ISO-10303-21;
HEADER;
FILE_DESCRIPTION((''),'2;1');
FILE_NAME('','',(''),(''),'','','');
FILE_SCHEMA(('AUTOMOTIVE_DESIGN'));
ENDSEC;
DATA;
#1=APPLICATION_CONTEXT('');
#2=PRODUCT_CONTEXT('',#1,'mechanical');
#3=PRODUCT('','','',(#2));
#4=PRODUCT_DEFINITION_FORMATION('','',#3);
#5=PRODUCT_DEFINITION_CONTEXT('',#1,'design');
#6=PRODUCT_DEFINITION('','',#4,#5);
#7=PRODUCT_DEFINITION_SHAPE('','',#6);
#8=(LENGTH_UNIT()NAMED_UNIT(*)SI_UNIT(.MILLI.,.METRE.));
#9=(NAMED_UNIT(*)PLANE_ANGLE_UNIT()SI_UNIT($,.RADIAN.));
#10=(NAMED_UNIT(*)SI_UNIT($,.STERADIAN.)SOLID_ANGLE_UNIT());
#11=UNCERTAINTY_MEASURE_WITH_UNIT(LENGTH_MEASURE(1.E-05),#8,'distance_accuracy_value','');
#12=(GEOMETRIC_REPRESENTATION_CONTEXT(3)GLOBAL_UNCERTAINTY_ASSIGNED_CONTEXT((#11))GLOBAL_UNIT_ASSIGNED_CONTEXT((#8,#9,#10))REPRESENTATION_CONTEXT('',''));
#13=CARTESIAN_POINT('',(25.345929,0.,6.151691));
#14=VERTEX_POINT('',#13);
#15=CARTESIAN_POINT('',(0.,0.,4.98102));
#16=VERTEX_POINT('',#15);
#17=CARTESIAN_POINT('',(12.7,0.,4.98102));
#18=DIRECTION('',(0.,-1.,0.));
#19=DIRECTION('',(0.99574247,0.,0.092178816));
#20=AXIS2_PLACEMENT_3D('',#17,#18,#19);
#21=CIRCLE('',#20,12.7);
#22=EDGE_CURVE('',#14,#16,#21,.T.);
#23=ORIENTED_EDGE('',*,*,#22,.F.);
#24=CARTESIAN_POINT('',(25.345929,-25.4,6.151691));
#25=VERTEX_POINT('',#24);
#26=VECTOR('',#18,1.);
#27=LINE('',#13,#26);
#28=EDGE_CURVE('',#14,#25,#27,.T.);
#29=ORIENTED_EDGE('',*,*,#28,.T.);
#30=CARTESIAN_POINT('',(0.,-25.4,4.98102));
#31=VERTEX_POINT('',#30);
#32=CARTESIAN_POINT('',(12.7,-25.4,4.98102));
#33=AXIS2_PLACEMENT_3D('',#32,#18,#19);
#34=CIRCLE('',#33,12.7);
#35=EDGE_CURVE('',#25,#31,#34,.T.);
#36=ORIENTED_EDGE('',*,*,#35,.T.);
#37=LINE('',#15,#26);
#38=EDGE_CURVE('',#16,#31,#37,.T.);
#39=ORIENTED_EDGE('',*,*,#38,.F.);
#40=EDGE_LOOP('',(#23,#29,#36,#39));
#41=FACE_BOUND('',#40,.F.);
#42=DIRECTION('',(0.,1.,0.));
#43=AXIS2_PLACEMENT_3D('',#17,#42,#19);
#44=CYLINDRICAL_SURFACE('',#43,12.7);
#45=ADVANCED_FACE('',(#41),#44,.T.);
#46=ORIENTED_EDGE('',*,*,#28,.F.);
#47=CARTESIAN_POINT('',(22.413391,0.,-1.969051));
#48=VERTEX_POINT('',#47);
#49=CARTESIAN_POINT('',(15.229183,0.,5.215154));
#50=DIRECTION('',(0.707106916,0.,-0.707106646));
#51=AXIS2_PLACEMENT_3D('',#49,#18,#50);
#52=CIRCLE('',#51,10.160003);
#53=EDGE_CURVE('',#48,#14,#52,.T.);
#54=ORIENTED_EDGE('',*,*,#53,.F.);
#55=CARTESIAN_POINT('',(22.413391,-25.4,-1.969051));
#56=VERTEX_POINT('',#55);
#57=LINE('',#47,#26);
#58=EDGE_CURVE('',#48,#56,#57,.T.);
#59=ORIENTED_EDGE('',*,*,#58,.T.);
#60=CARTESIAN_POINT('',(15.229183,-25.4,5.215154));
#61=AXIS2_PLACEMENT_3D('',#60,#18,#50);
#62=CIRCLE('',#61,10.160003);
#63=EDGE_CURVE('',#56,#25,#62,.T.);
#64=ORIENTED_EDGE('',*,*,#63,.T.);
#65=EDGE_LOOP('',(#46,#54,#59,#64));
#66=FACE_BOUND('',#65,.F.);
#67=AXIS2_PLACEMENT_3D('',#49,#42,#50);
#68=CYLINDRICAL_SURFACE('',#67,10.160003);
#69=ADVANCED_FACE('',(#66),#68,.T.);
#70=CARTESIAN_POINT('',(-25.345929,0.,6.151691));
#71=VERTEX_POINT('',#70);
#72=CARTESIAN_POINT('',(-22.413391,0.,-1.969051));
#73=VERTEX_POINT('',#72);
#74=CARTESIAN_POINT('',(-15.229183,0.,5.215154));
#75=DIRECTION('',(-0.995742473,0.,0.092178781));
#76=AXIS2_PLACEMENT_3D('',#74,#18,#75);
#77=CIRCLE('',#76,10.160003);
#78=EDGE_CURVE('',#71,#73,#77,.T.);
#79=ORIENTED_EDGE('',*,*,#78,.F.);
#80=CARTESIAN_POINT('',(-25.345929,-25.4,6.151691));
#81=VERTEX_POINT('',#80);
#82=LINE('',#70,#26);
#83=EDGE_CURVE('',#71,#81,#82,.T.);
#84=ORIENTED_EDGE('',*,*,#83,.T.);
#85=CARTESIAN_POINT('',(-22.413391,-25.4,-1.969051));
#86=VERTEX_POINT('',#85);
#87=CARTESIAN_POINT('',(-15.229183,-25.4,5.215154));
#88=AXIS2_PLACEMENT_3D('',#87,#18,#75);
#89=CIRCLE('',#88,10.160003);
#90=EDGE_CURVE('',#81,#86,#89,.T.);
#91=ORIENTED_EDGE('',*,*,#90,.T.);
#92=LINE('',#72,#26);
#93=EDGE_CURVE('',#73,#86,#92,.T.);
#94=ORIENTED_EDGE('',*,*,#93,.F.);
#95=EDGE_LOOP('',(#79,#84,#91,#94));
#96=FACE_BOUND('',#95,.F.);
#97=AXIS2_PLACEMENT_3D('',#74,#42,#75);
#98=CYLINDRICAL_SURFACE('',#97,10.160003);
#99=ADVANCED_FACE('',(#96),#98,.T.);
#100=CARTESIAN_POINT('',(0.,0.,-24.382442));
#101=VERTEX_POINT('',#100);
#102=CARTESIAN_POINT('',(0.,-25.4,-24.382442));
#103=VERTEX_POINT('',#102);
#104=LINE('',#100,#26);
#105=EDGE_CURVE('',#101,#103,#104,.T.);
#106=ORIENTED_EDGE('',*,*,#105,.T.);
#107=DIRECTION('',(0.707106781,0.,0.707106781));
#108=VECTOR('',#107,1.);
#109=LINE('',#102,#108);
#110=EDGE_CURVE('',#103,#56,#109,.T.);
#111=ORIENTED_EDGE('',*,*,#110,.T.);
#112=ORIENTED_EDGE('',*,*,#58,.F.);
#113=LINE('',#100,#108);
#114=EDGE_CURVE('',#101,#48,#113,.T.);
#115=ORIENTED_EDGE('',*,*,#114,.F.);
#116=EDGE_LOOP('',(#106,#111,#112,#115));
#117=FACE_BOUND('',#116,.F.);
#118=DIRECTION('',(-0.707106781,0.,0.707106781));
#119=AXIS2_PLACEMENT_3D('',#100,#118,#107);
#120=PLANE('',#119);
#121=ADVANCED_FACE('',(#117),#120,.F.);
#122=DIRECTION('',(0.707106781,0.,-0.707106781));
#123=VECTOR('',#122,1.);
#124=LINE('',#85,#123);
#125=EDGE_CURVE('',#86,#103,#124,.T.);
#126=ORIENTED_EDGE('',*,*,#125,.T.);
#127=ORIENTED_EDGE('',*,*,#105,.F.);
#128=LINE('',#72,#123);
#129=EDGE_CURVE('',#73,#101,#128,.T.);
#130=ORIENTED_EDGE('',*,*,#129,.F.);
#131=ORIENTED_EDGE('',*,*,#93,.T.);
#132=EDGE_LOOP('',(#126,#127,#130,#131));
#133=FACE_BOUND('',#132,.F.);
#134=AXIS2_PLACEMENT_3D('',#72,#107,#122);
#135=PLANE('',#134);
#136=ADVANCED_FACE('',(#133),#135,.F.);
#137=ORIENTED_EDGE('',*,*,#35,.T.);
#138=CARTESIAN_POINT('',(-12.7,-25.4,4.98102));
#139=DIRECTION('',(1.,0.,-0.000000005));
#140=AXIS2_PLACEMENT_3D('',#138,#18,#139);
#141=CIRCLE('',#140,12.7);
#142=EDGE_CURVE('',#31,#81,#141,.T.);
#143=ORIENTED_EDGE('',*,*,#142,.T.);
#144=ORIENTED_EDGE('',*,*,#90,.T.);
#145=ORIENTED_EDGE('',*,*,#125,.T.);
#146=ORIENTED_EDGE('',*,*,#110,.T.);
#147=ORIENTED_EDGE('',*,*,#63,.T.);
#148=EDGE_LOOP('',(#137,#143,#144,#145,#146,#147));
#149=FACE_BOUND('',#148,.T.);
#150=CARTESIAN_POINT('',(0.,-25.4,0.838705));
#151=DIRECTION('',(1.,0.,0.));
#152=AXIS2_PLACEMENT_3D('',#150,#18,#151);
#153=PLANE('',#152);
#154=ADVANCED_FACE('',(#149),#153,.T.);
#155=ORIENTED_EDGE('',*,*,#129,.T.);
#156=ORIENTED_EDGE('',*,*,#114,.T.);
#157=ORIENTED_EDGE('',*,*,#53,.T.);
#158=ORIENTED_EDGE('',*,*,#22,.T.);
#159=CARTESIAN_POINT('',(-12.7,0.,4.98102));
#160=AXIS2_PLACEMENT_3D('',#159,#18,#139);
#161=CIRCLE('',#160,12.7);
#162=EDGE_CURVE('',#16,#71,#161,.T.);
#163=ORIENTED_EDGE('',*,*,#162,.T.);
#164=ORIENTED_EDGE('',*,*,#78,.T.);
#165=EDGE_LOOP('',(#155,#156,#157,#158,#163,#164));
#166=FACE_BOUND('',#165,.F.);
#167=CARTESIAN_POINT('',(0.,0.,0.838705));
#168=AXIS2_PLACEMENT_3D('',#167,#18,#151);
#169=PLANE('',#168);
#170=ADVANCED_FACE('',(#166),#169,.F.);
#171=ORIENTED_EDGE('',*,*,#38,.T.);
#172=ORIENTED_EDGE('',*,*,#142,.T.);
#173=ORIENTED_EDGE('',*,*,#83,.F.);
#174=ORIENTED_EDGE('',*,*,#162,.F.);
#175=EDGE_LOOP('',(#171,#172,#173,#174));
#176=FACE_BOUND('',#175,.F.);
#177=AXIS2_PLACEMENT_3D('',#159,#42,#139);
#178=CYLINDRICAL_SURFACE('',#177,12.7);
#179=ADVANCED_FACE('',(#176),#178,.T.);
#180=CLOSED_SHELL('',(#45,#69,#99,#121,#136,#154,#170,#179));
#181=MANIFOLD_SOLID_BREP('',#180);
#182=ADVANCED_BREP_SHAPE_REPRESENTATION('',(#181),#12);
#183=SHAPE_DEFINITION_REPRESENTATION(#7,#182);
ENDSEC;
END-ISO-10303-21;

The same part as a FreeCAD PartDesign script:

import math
import FreeCAD as App
import Part
import Sketcher

V = App.Vector
Q = App.Units.Quantity

doc = App.newDocument("Part")
body = doc.addObject("PartDesign::Body", "Body")

# Sketch on XZ plane
sketch1 = body.newObject("Sketcher::SketchObject", "Sketch")
sketch1.AttachmentSupport = (doc.getObject("XZ_Plane"), [""])
sketch1.MapMode = "FlatFace"
sketch1.addGeometry([
    Part.LineSegment(V(-22.413391, -1.969051, 0), V(0, -24.382442, 0)),  # 0
    Part.LineSegment(V(0, -24.382442, 0), V(22.413391, -1.969051, 0)),  # 1
    Part.ArcOfCircle(Part.Circle(V(15.229183, 5.215154, 0), V(0, 0, 1), 10.160003), math.radians(-44.999989), math.radians(5.288963)),  # 2
    Part.ArcOfCircle(Part.Circle(V(12.7, 4.98102, 0), V(0, 0, 1), 12.7), math.radians(5.288965), math.radians(180)),  # 3
    Part.ArcOfCircle(Part.Circle(V(-12.7, 4.98102, 0), V(0, 0, 1), 12.7), math.radians(0), math.radians(174.711035)),  # 4
    Part.ArcOfCircle(Part.Circle(V(-15.229183, 5.215154, 0), V(0, 0, 1), 10.160003), math.radians(174.711037), math.radians(224.999989)),  # 5
], False)
sketch1.addConstraint([
    Sketcher.Constraint("Coincident", 0, 2, 1, 1),
    Sketcher.Constraint("Coincident", 1, 2, 2, 1),
    Sketcher.Constraint("Coincident", 2, 2, 3, 1),
    Sketcher.Constraint("Coincident", 3, 2, 4, 1),
    Sketcher.Constraint("Coincident", 4, 2, 5, 1),
    Sketcher.Constraint("Coincident", 5, 2, 0, 1),
    Sketcher.Constraint("PointOnObject", 0, 2, -2),
    Sketcher.Constraint("PointOnObject", 3, 2, -2),
    Sketcher.Constraint("Radius", 2, Q("0.4000001 in")),
    Sketcher.Constraint("Radius", 3, Q("0.5 in")),
    Sketcher.Constraint("Radius", 4, Q("0.5 in")),
    Sketcher.Constraint("Radius", 5, Q("0.4000001 in")),
    Sketcher.Constraint("Distance", 0, Q("31.697322 mm")),
    Sketcher.Constraint("Distance", 1, Q("31.697322 mm")),
    Sketcher.Constraint("DistanceY", -1, 1, 3, 3, Q("4.98102 mm")),
    Sketcher.Constraint("DistanceY", -1, 1, 4, 3, Q("4.98102 mm")),
    Sketcher.Constraint("DistanceX", -1, 1, 1, 2, Q("22.413391 mm")),
    Sketcher.Constraint("DistanceY", 1, 2, -1, 1, Q("1.969051 mm")),
    Sketcher.Constraint("DistanceX", -1, 1, 2, 2, Q("25.345929 mm")),
    Sketcher.Constraint("DistanceY", -1, 1, 3, 2, Q("4.98102 mm")),
    Sketcher.Constraint("DistanceX", 4, 2, -1, 1, Q("25.345929 mm")),
    Sketcher.Constraint("DistanceX", 5, 2, -1, 1, Q("22.413391 mm")),
])
pad1 = body.newObject("PartDesign::Pad", "Pad")
pad1.Profile = sketch1
pad1.Length = Q("1 in")

doc.recompute()
